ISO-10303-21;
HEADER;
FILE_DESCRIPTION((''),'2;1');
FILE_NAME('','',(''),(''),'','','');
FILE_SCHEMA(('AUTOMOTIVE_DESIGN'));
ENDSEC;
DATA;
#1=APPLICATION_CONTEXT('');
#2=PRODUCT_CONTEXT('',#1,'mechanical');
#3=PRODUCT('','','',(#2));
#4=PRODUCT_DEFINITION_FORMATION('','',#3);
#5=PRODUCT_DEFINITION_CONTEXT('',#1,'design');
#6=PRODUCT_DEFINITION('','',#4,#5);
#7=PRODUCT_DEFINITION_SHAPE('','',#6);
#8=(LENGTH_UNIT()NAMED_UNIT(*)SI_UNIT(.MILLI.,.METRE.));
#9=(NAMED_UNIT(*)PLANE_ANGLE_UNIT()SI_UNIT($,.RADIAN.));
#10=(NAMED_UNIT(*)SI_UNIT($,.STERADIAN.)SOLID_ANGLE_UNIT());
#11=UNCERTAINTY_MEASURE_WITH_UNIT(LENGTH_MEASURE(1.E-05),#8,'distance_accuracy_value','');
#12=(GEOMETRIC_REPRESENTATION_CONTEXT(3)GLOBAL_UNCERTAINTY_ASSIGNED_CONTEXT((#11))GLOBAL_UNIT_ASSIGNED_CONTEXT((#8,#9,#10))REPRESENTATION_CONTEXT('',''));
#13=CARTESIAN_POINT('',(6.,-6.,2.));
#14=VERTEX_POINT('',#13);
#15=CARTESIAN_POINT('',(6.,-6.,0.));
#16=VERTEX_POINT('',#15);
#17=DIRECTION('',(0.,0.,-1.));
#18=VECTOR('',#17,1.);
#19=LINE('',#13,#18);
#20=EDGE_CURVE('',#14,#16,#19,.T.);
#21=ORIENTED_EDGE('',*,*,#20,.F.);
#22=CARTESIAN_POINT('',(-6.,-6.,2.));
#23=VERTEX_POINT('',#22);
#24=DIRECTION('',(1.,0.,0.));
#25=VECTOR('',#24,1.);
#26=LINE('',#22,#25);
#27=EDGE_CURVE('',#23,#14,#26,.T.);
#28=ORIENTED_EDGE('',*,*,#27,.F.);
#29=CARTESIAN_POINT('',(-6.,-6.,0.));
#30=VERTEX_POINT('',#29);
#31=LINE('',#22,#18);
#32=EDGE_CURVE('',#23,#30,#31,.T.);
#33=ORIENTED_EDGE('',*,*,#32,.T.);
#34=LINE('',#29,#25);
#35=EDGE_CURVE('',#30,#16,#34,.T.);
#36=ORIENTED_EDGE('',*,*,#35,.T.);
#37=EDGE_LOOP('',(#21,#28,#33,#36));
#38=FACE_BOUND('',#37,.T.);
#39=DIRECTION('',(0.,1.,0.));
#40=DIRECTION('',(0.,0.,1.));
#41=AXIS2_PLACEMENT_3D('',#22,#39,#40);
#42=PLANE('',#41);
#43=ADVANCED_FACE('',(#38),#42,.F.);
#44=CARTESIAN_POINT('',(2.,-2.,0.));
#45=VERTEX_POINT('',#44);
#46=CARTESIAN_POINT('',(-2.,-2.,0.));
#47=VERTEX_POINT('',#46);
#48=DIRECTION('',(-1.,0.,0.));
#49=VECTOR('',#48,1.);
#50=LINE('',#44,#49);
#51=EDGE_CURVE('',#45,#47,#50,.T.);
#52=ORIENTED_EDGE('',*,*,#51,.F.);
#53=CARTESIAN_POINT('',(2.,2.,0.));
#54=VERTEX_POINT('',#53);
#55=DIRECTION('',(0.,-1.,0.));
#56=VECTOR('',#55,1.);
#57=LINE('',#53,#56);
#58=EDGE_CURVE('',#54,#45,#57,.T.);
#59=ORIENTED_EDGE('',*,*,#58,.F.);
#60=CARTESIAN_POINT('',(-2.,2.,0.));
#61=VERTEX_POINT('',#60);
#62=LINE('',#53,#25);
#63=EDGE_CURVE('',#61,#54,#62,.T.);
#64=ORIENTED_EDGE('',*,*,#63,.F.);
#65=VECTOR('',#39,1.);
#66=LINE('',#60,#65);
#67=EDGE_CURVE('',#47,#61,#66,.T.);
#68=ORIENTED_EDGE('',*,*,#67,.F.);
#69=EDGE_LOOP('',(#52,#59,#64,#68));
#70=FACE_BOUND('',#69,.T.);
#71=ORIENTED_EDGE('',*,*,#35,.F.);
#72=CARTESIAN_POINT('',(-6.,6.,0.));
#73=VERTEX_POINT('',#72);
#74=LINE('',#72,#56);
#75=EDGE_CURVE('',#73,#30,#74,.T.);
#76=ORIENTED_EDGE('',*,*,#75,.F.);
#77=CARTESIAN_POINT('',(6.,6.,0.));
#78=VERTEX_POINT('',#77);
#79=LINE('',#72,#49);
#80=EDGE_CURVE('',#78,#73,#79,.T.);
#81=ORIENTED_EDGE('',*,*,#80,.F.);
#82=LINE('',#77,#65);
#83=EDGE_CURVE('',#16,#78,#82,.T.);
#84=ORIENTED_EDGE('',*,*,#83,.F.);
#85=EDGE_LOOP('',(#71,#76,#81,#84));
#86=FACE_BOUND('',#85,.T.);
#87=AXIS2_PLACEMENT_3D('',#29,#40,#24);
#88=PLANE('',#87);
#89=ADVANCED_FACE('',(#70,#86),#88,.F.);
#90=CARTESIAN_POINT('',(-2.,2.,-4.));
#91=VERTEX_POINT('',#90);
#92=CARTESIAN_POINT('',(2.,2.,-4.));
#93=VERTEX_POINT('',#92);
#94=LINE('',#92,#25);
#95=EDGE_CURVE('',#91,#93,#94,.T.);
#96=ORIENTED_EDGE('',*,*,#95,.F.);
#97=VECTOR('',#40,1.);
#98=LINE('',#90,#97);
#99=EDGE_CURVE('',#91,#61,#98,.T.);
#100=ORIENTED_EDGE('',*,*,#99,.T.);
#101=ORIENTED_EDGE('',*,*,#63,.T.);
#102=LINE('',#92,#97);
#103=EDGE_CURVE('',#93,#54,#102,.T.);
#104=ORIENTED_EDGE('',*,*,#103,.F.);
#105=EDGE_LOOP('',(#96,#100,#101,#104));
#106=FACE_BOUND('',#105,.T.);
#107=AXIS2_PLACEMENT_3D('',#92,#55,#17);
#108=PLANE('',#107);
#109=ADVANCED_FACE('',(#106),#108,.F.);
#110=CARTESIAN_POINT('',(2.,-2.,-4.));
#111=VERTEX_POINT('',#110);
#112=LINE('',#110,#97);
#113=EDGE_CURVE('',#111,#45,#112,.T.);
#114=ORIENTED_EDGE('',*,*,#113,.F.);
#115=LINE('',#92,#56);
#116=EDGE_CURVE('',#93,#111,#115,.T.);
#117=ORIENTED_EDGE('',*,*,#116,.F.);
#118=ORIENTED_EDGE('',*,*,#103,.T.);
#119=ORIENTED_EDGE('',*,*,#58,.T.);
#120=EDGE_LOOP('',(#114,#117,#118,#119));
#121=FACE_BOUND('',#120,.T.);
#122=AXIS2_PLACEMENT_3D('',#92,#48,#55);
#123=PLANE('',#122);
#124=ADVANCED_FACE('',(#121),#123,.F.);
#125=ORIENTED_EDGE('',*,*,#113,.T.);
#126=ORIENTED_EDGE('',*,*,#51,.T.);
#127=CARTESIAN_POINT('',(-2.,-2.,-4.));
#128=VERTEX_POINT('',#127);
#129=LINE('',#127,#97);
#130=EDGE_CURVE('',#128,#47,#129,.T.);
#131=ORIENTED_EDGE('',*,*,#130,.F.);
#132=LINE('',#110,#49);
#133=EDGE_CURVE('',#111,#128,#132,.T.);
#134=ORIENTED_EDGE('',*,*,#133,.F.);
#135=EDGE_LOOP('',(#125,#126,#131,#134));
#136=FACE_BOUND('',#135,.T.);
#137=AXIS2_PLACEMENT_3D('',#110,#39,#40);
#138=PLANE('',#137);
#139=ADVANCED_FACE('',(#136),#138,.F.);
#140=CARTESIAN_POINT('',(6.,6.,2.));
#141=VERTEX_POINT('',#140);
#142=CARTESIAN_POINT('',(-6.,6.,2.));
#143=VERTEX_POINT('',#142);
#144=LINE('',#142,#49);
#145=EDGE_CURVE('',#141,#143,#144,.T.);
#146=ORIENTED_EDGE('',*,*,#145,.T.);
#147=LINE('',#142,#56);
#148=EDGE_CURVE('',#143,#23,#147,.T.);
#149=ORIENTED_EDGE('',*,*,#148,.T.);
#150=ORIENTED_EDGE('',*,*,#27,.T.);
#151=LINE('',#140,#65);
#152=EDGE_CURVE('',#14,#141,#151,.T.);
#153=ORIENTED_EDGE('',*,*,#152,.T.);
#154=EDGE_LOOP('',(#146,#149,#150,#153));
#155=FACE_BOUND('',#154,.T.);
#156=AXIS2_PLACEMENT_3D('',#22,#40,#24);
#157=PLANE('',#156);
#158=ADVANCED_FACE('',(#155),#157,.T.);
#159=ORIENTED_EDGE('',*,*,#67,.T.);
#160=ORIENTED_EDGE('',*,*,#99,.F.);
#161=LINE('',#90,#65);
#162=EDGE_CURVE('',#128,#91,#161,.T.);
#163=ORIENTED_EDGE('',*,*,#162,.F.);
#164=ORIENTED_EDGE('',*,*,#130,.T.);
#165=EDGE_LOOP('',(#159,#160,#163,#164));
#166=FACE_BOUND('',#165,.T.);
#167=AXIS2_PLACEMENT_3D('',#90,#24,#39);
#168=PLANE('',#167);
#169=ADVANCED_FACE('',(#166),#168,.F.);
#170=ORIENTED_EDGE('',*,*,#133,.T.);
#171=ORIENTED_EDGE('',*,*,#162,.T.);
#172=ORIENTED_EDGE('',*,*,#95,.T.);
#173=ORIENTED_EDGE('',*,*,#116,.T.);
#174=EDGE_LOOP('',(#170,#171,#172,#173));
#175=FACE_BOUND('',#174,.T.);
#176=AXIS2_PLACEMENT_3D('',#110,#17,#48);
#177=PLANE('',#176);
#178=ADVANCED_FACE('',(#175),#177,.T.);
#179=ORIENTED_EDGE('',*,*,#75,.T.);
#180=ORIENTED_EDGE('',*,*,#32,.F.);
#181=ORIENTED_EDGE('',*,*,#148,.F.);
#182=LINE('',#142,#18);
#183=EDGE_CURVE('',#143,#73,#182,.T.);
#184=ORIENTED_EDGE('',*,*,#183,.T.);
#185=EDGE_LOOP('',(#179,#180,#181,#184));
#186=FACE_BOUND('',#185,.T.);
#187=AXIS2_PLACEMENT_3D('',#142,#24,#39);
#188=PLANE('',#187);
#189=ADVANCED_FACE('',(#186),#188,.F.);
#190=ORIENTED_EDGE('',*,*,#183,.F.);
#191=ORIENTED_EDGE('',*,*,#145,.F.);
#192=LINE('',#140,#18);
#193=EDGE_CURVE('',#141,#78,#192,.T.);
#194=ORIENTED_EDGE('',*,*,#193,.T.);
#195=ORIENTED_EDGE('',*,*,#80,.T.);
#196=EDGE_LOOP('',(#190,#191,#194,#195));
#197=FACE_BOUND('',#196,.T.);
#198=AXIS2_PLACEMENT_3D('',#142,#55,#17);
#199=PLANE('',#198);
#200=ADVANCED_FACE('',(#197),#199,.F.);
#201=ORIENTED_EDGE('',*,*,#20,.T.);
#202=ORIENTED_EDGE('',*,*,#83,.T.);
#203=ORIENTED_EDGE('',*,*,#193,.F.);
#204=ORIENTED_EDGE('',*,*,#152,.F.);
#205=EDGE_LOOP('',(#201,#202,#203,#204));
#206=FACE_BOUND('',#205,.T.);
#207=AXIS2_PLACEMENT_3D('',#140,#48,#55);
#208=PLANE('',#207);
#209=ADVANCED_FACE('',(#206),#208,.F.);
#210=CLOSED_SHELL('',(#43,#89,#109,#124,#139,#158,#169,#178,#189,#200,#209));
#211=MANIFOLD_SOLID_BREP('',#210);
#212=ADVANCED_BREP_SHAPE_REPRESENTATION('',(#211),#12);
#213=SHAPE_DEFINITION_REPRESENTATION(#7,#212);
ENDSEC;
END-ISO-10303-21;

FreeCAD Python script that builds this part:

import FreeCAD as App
import Part
import Sketcher

V = App.Vector
Q = App.Units.Quantity


def add_polygon(sketch, points):
    """Adds a closed chain of lines whose ends are joined by coincident constraints."""
    first, n = sketch.GeometryCount, len(points)
    for a, b in zip(points, points[1:] + points[:1]):
        sketch.addGeometry(Part.LineSegment(App.Vector(*a, 0), App.Vector(*b, 0)), False)
    for i in range(n):
        sketch.addConstraint(Sketcher.Constraint("Coincident", first + i, 2, first + (i + 1) % n, 1))

doc = App.newDocument("Part")
body = doc.addObject("PartDesign::Body", "Body")

sketch1 = doc.addObject("Sketcher::SketchObject", "Sketch")
body.addObject(sketch1)
sketch1.AttachmentSupport = (doc.XY_Plane, [""])
sketch1.MapMode = "FlatFace"
add_polygon(sketch1, [(-6, 6), (-6, -6), (6, -6), (6, 6)])
sketch1.addConstraint(Sketcher.Constraint("Vertical", 0))
sketch1.addConstraint(Sketcher.Constraint("Horizontal", 1))
sketch1.addConstraint(Sketcher.Constraint("Vertical", 2))
sketch1.addConstraint(Sketcher.Constraint("Horizontal", 3))
sketch1.addConstraint(Sketcher.Constraint("Symmetric", 0, 2, 2, 2, -1, 1))
sketch1.addConstraint(Sketcher.Constraint("Equal", 3, 0))
sketch1.addConstraint(Sketcher.Constraint("DistanceX", 1, 1, 1, 2, Q("12 mm")))
pad1 = doc.addObject("PartDesign::Pad", "Pad")
body.addObject(pad1)
pad1.Profile = sketch1
pad1.Length = 2

sketch2 = doc.addObject("Sketcher::SketchObject", "Sketch001")
body.addObject(sketch2)
sketch2.AttachmentSupport = (doc.XY_Plane, [""])
sketch2.MapMode = "FlatFace"
add_polygon(sketch2, [(2, 2), (2, -2), (-2, -2), (-2, 2)])
sketch2.addConstraint(Sketcher.Constraint("Vertical", 0))
sketch2.addConstraint(Sketcher.Constraint("Horizontal", 1))
sketch2.addConstraint(Sketcher.Constraint("Vertical", 2))
sketch2.addConstraint(Sketcher.Constraint("Horizontal", 3))
sketch2.addConstraint(Sketcher.Constraint("Symmetric", 0, 2, 2, 2, -1, 1))
sketch2.addConstraint(Sketcher.Constraint("Equal", 3, 0))
sketch2.addConstraint(Sketcher.Constraint("DistanceX", 1, 2, 1, 1, Q("4 mm")))
pad2 = doc.addObject("PartDesign::Pad", "Pad001")
body.addObject(pad2)
pad2.Profile = sketch2
pad2.Length = 4
pad2.Reversed = True

doc.recompute()
